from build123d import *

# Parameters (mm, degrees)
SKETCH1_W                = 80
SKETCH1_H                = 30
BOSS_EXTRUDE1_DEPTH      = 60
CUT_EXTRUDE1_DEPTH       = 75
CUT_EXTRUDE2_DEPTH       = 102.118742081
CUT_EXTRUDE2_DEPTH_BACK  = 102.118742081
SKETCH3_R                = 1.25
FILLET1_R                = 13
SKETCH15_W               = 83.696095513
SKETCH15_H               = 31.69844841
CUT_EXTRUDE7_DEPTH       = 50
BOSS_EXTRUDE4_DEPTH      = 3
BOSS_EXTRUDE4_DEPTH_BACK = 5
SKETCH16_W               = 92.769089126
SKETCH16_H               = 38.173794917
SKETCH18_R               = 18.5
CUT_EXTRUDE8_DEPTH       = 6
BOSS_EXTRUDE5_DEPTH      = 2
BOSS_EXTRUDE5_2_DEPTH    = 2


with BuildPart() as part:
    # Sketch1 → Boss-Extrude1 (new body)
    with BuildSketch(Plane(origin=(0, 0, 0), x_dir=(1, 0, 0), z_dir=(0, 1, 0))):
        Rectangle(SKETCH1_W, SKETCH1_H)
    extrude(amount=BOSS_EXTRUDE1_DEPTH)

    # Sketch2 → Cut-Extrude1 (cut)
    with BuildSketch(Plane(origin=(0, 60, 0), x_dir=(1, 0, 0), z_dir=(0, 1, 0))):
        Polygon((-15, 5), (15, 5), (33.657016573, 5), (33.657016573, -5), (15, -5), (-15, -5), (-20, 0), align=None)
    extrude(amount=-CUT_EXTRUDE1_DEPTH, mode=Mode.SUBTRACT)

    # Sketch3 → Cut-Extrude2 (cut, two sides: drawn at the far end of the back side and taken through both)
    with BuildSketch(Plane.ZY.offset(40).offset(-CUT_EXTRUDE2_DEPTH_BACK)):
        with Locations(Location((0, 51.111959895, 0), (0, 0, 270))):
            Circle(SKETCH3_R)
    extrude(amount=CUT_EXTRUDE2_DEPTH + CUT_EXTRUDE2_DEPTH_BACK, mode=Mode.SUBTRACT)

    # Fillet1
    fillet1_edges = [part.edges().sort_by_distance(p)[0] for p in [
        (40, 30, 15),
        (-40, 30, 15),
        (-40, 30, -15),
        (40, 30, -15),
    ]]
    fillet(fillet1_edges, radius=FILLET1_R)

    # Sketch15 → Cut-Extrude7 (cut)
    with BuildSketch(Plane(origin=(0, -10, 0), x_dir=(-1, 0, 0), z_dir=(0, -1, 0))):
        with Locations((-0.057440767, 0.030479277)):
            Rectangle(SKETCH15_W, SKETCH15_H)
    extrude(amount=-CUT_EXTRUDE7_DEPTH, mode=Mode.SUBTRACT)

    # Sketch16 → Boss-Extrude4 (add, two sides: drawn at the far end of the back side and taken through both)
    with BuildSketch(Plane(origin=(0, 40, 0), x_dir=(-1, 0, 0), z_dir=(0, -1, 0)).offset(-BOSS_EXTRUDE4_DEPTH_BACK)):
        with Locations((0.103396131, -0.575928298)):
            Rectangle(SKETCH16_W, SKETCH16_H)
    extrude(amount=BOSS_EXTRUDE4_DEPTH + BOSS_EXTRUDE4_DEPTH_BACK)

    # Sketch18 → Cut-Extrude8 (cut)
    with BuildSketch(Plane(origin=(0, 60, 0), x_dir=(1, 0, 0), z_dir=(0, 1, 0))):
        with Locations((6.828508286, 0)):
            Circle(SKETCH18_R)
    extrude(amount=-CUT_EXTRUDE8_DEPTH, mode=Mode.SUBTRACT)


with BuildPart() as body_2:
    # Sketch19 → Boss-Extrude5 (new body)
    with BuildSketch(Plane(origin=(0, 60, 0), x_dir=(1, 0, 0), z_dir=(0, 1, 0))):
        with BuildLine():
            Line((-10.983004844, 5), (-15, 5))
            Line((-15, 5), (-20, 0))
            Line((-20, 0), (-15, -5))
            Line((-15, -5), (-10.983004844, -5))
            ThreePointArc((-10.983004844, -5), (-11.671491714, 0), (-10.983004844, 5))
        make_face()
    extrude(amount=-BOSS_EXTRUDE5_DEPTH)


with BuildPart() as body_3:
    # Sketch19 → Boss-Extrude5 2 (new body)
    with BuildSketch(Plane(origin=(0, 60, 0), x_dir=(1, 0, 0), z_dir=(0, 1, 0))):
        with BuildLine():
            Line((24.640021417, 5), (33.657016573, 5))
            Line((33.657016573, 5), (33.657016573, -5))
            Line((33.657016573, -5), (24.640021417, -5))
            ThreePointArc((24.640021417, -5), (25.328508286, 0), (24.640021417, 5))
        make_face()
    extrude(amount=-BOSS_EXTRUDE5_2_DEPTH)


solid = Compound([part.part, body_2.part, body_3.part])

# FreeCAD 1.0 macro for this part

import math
import FreeCAD as App
import Part
import Sketcher
from FreeCAD import Vector


def edges_at(feature, points):
    """Names of the edges that pass closest to the given points."""
    edges = feature.Shape.Edges
    near = lambda p: min(range(len(edges)), key=lambda i: edges[i].distToShape(Part.Vertex(*p))[0])
    return sorted({f"Edge{near(p) + 1}" for p in points})

doc = App.newDocument("Part")
params = doc.addObject("Spreadsheet::Sheet", "Params")
for row, (alias, value) in enumerate([
    ("sketch1_width", "80 mm"),
    ("sketch1_height", "30 mm"),
    ("pad1_length", "60 mm"),
    ("sketch2_height", "10 mm"),
    ("pocket1_length", "75 mm"),
    ("sketch3_diameter", "2.5 mm"),
    ("fillet_radius", "13 mm"),
    ("pocket3_length", "50 mm"),
    ("pad2_length", "3 mm"),
    ("pad2_length2", "5 mm"),
    ("sketch6_diameter", "37 mm"),
    ("pocket4_length", "6 mm"),
    ("sketch7_radius", "18.5 mm"),
    ("pad3_length", "2 mm"),
    ("sketch8_radius", "18.5 mm"),
    ("sketch8_height", "10 mm"),
    ("pad4_length", "2 mm"),
], start=1):
    params.set(f"A{row}", alias)
    params.set(f"B{row}", "=" + value)
    params.setAlias(f"B{row}", alias)

body = doc.addObject("PartDesign::Body", "Body")

sketch1 = doc.addObject("Sketcher::SketchObject", "Sketch")
body.addObject(sketch1)
sketch1.AttachmentSupport = (doc.XZ_Plane, [""])
sketch1.MapMode = "FlatFace"
sketch1.addGeometry(Part.LineSegment(Vector(-40, -15, 0), Vector(-40, 15, 0)), False)
sketch1.addGeometry(Part.LineSegment(Vector(-40, 15, 0), Vector(40, 15, 0)), False)
sketch1.addGeometry(Part.LineSegment(Vector(40, 15, 0), Vector(40, -15, 0)), False)
sketch1.addGeometry(Part.LineSegment(Vector(40, -15, 0), Vector(-40, -15, 0)), False)
sketch1.addConstraint(Sketcher.Constraint("Coincident", 0, 2, 1, 1))
sketch1.addConstraint(Sketcher.Constraint("Coincident", 1, 2, 2, 1))
sketch1.addConstraint(Sketcher.Constraint("Coincident", 2, 2, 3, 1))
sketch1.addConstraint(Sketcher.Constraint("Coincident", 3, 2, 0, 1))
sketch1.addConstraint(Sketcher.Constraint("Vertical", 0))
sketch1.addConstraint(Sketcher.Constraint("Horizontal", 1))
sketch1.addConstraint(Sketcher.Constraint("Vertical", 2))
sketch1.addConstraint(Sketcher.Constraint("Horizontal", 3))
sketch1.addConstraint(Sketcher.Constraint("Symmetric", 0, 2, 2, 2, -1, 1))
sketch1.addConstraint(Sketcher.Constraint("DistanceX", 1, 1, 1, 2, 80.0))
sketch1.addConstraint(Sketcher.Constraint("DistanceY", 0, 1, 0, 2, 30.0))
sketch1.setExpression("Constraints[9]", "Params.sketch1_width")
sketch1.setExpression("Constraints[10]", "Params.sketch1_height")
pad1 = doc.addObject("PartDesign::Pad", "Pad")
body.addObject(pad1)
pad1.Profile = sketch1
pad1.setExpression("Length", "Params.pad1_length")
pad1.Reversed = True

sketch2 = doc.addObject("Sketcher::SketchObject", "Sketch001")
body.addObject(sketch2)
sketch2.AttachmentSupport = (doc.XZ_Plane, [""])
sketch2.MapMode = "FlatFace"
sketch2.AttachmentOffset = App.Placement(Vector(0, 0, -60), App.Rotation())
sketch2.addGeometry(Part.LineSegment(Vector(34, -5, 0), Vector(-15, -5, 0)), False)
sketch2.addGeometry(Part.LineSegment(Vector(-15, -5, 0), Vector(-20, 0, 0)), False)
sketch2.addGeometry(Part.LineSegment(Vector(-20, 0, 0), Vector(-15, 5, 0)), False)
sketch2.addGeometry(Part.LineSegment(Vector(-15, 5, 0), Vector(34, 5, 0)), False)
sketch2.addGeometry(Part.LineSegment(Vector(34, 5, 0), Vector(34, -5, 0)), False)
sketch2.addConstraint(Sketcher.Constraint("Coincident", 0, 2, 1, 1))
sketch2.addConstraint(Sketcher.Constraint("Coincident", 1, 2, 2, 1))
sketch2.addConstraint(Sketcher.Constraint("Coincident", 2, 2, 3, 1))
sketch2.addConstraint(Sketcher.Constraint("Coincident", 3, 2, 4, 1))
sketch2.addConstraint(Sketcher.Constraint("Coincident", 4, 2, 0, 1))
sketch2.addConstraint(Sketcher.Constraint("Horizontal", 0))
sketch2.addConstraint(Sketcher.Constraint("Horizontal", 3))
sketch2.addConstraint(Sketcher.Constraint("Vertical", 4))
sketch2.addConstraint(Sketcher.Constraint("Symmetric", 0, 2, 2, 2, -1))
sketch2.addConstraint(Sketcher.Constraint("PointOnObject", 1, 2, -1))
sketch2.addConstraint(Sketcher.Constraint("Perpendicular", 1, 2))
sketch2.addConstraint(Sketcher.Constraint("DistanceY", 4, 2, 4, 1, 10.0))
sketch2.addConstraint(Sketcher.Constraint("DistanceX", 0, 2, -1, 1, 15.0))
sketch2.addConstraint(Sketcher.Constraint("DistanceX", 0, 2, 0, 1, 48.657017))
sketch2.setExpression("Constraints[11]", "Params.sketch2_height")
pocket1 = doc.addObject("PartDesign::Pocket", "Pocket")
body.addObject(pocket1)
pocket1.Profile = sketch2
pocket1.setExpression("Length", "Params.pocket1_length")
pocket1.Reversed = True

sketch3 = doc.addObject("Sketcher::SketchObject", "Sketch002")
body.addObject(sketch3)
sketch3.AttachmentSupport = (doc.YZ_Plane, [""])
sketch3.MapMode = "FlatFace"
sketch3.AttachmentOffset = App.Placement(Vector(0, 0, -40), App.Rotation())
sketch3.addGeometry(Part.Circle(Vector(51.1, 0, 0), Vector(0, 0, 1), 1.2), False)
sketch3.addConstraint(Sketcher.Constraint("PointOnObject", 0, 3, -1))
sketch3.addConstraint(Sketcher.Constraint("Diameter", 0, 2.5))
sketch3.addConstraint(Sketcher.Constraint("DistanceX", -1, 1, 0, 3, 51.11196))
sketch3.setExpression("Constraints[1]", "Params.sketch3_diameter")
pocket2 = doc.addObject("PartDesign::Pocket", "Pocket001")
body.addObject(pocket2)
pocket2.Profile = sketch3
pocket2.Type = "ThroughAll"
pocket2.Midplane = True
doc.recompute()

fillet = doc.addObject("PartDesign::Fillet", "Fillet")
body.addObject(fillet)
fillet.Base = (pocket2, edges_at(pocket2, [
    (40, 30, 15),
    (-40, 30, 15),
    (-40, 30, -15),
    (40, 30, -15),
]))
fillet.setExpression("Radius", "Params.fillet_radius")

sketch4 = doc.addObject("Sketcher::SketchObject", "Sketch003")
body.addObject(sketch4)
sketch4.AttachmentSupport = (doc.XZ_Plane, [""])
sketch4.MapMode = "FlatFace"
sketch4.AttachmentOffset = App.Placement(Vector(0, 0, 10), App.Rotation())
sketch4.addGeometry(Part.LineSegment(Vector(42, -16, 0), Vector(42, 16, 0)), False)
sketch4.addGeometry(Part.LineSegment(Vector(42, 16, 0), Vector(-42, 16, 0)), False)
sketch4.addGeometry(Part.LineSegment(Vector(-42, 16, 0), Vector(-42, -16, 0)), False)
sketch4.addGeometry(Part.LineSegment(Vector(-42, -16, 0), Vector(42, -16, 0)), False)
sketch4.addConstraint(Sketcher.Constraint("Coincident", 0, 2, 1, 1))
sketch4.addConstraint(Sketcher.Constraint("Coincident", 1, 2, 2, 1))
sketch4.addConstraint(Sketcher.Constraint("Coincident", 2, 2, 3, 1))
sketch4.addConstraint(Sketcher.Constraint("Coincident", 3, 2, 0, 1))
sketch4.addConstraint(Sketcher.Constraint("Vertical", 0))
sketch4.addConstraint(Sketcher.Constraint("Horizontal", 1))
sketch4.addConstraint(Sketcher.Constraint("Vertical", 2))
sketch4.addConstraint(Sketcher.Constraint("Horizontal", 3))
sketch4.addConstraint(Sketcher.Constraint("DistanceY", 0, 1, 0, 2, 31.698448))
sketch4.addConstraint(Sketcher.Constraint("DistanceX", 1, 2, 1, 1, 83.696096))
sketch4.addConstraint(Sketcher.Constraint("DistanceX", -1, 1, 0, 2, 41.905489))
sketch4.addConstraint(Sketcher.Constraint("DistanceY", -1, 1, 0, 2, 15.818745))
pocket3 = doc.addObject("PartDesign::Pocket", "Pocket002")
body.addObject(pocket3)
pocket3.Profile = sketch4
pocket3.setExpression("Length", "Params.pocket3_length")

sketch5 = doc.addObject("Sketcher::SketchObject", "Sketch004")
body.addObject(sketch5)
sketch5.AttachmentSupport = (doc.XZ_Plane, [""])
sketch5.MapMode = "FlatFace"
sketch5.AttachmentOffset = App.Placement(Vector(0, 0, -40), App.Rotation())
sketch5.addGeometry(Part.LineSegment(Vector(46, -19, 0), Vector(46, 20, 0)), False)
sketch5.addGeometry(Part.LineSegment(Vector(46, 20, 0), Vector(-46, 20, 0)), False)
sketch5.addGeometry(Part.LineSegment(Vector(-46, 20, 0), Vector(-46, -19, 0)), False)
sketch5.addGeometry(Part.LineSegment(Vector(-46, -19, 0), Vector(46, -19, 0)), False)
sketch5.addConstraint(Sketcher.Constraint("Coincident", 0, 2, 1, 1))
sketch5.addConstraint(Sketcher.Constraint("Coincident", 1, 2, 2, 1))
sketch5.addConstraint(Sketcher.Constraint("Coincident", 2, 2, 3, 1))
sketch5.addConstraint(Sketcher.Constraint("Coincident", 3, 2, 0, 1))
sketch5.addConstraint(Sketcher.Constraint("Vertical", 0))
sketch5.addConstraint(Sketcher.Constraint("Horizontal", 1))
sketch5.addConstraint(Sketcher.Constraint("Vertical", 2))
sketch5.addConstraint(Sketcher.Constraint("Horizontal", 3))
sketch5.addConstraint(Sketcher.Constraint("DistanceX", 1, 2, 1, 1, 92.769089))
sketch5.addConstraint(Sketcher.Constraint("DistanceY", 0, 1, 0, 2, 38.173795))
sketch5.addConstraint(Sketcher.Constraint("DistanceX", -1, 1, 0, 2, 46.281148))
sketch5.addConstraint(Sketcher.Constraint("DistanceY", 2, 2, -1, 1, 18.510969))
pad2 = doc.addObject("PartDesign::Pad", "Pad001")
body.addObject(pad2)
pad2.Profile = sketch5
pad2.Type = "TwoLengths"
pad2.setExpression("Length", "Params.pad2_length")
pad2.setExpression("Length2", "Params.pad2_length2")

sketch6 = doc.addObject("Sketcher::SketchObject", "Sketch005")
body.addObject(sketch6)
sketch6.AttachmentSupport = (doc.XZ_Plane, [""])
sketch6.MapMode = "FlatFace"
sketch6.AttachmentOffset = App.Placement(Vector(0, 0, -60), App.Rotation())
sketch6.addGeometry(Part.Circle(Vector(7, 0, 0), Vector(0, 0, 1), 18), False)
sketch6.addConstraint(Sketcher.Constraint("PointOnObject", 0, 3, -1))
sketch6.addConstraint(Sketcher.Constraint("Diameter", 0, 37.0))
sketch6.addConstraint(Sketcher.Constraint("DistanceX", -1, 1, 0, 3, 6.828508))
sketch6.setExpression("Constraints[1]", "Params.sketch6_diameter")
pocket4 = doc.addObject("PartDesign::Pocket", "Pocket003")
body.addObject(pocket4)
pocket4.Profile = sketch6
pocket4.setExpression("Length", "Params.pocket4_length")
pocket4.Reversed = True
body2 = doc.addObject("PartDesign::Body", "Body001")

sketch7 = doc.addObject("Sketcher::SketchObject", "Sketch006")
body2.addObject(sketch7)
sketch7.AttachmentSupport = (doc.getObject("XZ_Plane001"), [""])
sketch7.MapMode = "FlatFace"
sketch7.AttachmentOffset = App.Placement(Vector(0, 0, -60), App.Rotation())
sketch7.addGeometry(Part.LineSegment(Vector(-11, -5, 0), Vector(-15, -5, 0)), False)
sketch7.addGeometry(Part.LineSegment(Vector(-15, -5, 0), Vector(-20, 0, 0)), False)
sketch7.addGeometry(Part.LineSegment(Vector(-20, 0, 0), Vector(-15, 5, 0)), False)
sketch7.addGeometry(Part.LineSegment(Vector(-15, 5, 0), Vector(-11, 5, 0)), False)
sketch7.addGeometry(Part.ArcOfCircle(Part.Circle(Vector(6.8, 0, 0), Vector(0, 0, 1), 18.5), math.radians(164), math.radians(196)), False)
sketch7.addConstraint(Sketcher.Constraint("Coincident", 0, 2, 1, 1))
sketch7.addConstraint(Sketcher.Constraint("Coincident", 1, 2, 2, 1))
sketch7.addConstraint(Sketcher.Constraint("Coincident", 2, 2, 3, 1))
sketch7.addConstraint(Sketcher.Constraint("Coincident", 3, 2, 4, 1))
sketch7.addConstraint(Sketcher.Constraint("Coincident", 4, 2, 0, 1))
sketch7.addConstraint(Sketcher.Constraint("Horizontal", 0))
sketch7.addConstraint(Sketcher.Constraint("Horizontal", 3))
sketch7.addConstraint(Sketcher.Constraint("Symmetric", 0, 2, 2, 2, -1))
sketch7.addConstraint(Sketcher.Constraint("PointOnObject", 4, 3, -1))
sketch7.addConstraint(Sketcher.Constraint("PointOnObject", 1, 2, -1))
sketch7.addConstraint(Sketcher.Constraint("Perpendicular", 1, 2))
sketch7.addConstraint(Sketcher.Constraint("Radius", 4, 18.5))
sketch7.addConstraint(Sketcher.Constraint("DistanceX", 0, 2, -1, 1, 15.0))
sketch7.addConstraint(Sketcher.Constraint("DistanceY", 0, 2, -1, 1, 5.0))
sketch7.addConstraint(Sketcher.Constraint("DistanceX", 0, 2, 0, 1, 4.016995))
sketch7.setExpression("Constraints[11]", "Params.sketch7_radius")
pad3 = doc.addObject("PartDesign::Pad", "Pad002")
body2.addObject(pad3)
pad3.Profile = sketch7
pad3.setExpression("Length", "Params.pad3_length")
body3 = doc.addObject("PartDesign::Body", "Body002")

sketch8 = doc.addObject("Sketcher::SketchObject", "Sketch007")
body3.addObject(sketch8)
sketch8.AttachmentSupport = (doc.getObject("XZ_Plane002"), [""])
sketch8.MapMode = "FlatFace"
sketch8.AttachmentOffset = App.Placement(Vector(0, 0, -60), App.Rotation())
sketch8.addGeometry(Part.LineSegment(Vector(34, -5, 0), Vector(25, -5, 0)), False)
sketch8.addGeometry(Part.ArcOfCircle(Part.Circle(Vector(7, 0, 0), Vector(0, 0, 1), 19), math.radians(-16), math.radians(16)), False)
sketch8.addGeometry(Part.LineSegment(Vector(25, 5, 0), Vector(34, 5, 0)), False)
sketch8.addGeometry(Part.LineSegment(Vector(34, 5, 0), Vector(34, -5, 0)), False)
sketch8.addConstraint(Sketcher.Constraint("Coincident", 0, 2, 1, 1))
sketch8.addConstraint(Sketcher.Constraint("Coincident", 1, 2, 2, 1))
sketch8.addConstraint(Sketcher.Constraint("Coincident", 2, 2, 3, 1))
sketch8.addConstraint(Sketcher.Constraint("Coincident", 3, 2, 0, 1))
sketch8.addConstraint(Sketcher.Constraint("Horizontal", 0))
sketch8.addConstraint(Sketcher.Constraint("Horizontal", 2))
sketch8.addConstraint(Sketcher.Constraint("Vertical", 3))
sketch8.addConstraint(Sketcher.Constraint("Symmetric", 0, 2, 1, 2, -1))
sketch8.addConstraint(Sketcher.Constraint("Radius", 1, 18.5))
sketch8.addConstraint(Sketcher.Constraint("DistanceY", 3, 2, 3, 1, 10.0))
sketch8.addConstraint(Sketcher.Constraint("DistanceX", 0, 2, 0, 1, 9.016995))
sketch8.addConstraint(Sketcher.Constraint("DistanceX", -1, 1, 1, 3, 6.828508))
sketch8.setExpression("Constraints[8]", "Params.sketch8_radius")
sketch8.setExpression("Constraints[9]", "Params.sketch8_height")
pad4 = doc.addObject("PartDesign::Pad", "Pad003")
body3.addObject(pad4)
pad4.Profile = sketch8
pad4.setExpression("Length", "Params.pad4_length")

doc.recompute()
